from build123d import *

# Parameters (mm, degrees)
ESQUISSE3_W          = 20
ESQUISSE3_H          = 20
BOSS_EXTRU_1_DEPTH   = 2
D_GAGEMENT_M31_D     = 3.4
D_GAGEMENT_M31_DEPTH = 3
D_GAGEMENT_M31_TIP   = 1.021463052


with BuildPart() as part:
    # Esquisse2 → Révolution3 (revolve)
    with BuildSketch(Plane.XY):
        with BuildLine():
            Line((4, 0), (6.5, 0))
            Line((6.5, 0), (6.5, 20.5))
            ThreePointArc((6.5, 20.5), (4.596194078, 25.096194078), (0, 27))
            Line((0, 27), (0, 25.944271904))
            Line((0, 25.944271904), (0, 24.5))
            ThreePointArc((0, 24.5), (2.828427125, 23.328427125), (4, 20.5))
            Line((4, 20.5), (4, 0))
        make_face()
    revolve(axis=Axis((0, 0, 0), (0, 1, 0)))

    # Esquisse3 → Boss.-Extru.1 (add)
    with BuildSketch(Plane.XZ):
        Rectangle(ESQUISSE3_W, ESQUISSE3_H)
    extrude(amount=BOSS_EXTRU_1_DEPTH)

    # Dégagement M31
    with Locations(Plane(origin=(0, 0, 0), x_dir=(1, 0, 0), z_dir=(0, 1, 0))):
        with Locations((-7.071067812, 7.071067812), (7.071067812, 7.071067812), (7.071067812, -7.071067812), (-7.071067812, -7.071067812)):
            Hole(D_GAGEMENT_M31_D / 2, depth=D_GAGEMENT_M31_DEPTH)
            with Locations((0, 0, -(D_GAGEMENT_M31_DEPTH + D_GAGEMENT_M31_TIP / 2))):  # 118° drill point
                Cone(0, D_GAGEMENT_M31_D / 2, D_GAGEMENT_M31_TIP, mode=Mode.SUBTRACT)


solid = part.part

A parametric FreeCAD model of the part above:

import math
import FreeCAD as App
import Part
import Sketcher


def add_polygon(sketch, points):
    """Adds a closed chain of lines whose ends are joined by coincident constraints."""
    first, n = sketch.GeometryCount, len(points)
    for a, b in zip(points, points[1:] + points[:1]):
        sketch.addGeometry(Part.LineSegment(App.Vector(*a, 0), App.Vector(*b, 0)), False)
    for i in range(n):
        sketch.addConstraint(Sketcher.Constraint("Coincident", first + i, 2, first + (i + 1) % n, 1))

doc = App.newDocument("Part")
body = doc.addObject("PartDesign::Body", "Body")

# Sketch on XY plane
sketch1 = body.newObject("Sketcher::SketchObject", "Sketch")
sketch1.AttachmentSupport = (doc.getObject("XY_Plane"), [""])
sketch1.MapMode = "FlatFace"
sketch1.addGeometry([
    Part.LineSegment(App.Vector(4, 0, 0), App.Vector(6.5, 0, 0)),  # 0
    Part.LineSegment(App.Vector(6.5, 0, 0), App.Vector(6.5, 20.5, 0)),  # 1
    Part.ArcOfCircle(Part.Circle(App.Vector(0, 20.5, 0), App.Vector(0, 0, 1), 6.5), math.radians(0), math.radians(90)),  # 2
    Part.LineSegment(App.Vector(0, 27, 0), App.Vector(0, 24.5, 0)),  # 3
    Part.ArcOfCircle(Part.Circle(App.Vector(0, 20.5, 0), App.Vector(0, 0, 1), 4), math.radians(0), math.radians(90)),  # 4
    Part.LineSegment(App.Vector(4, 20.5, 0), App.Vector(4, 0, 0)),  # 5
], False)
sketch1.addConstraint([
    Sketcher.Constraint("Coincident", 0, 2, 1, 1),
    Sketcher.Constraint("Tangent", 1, 2, 2, 1),
    Sketcher.Constraint("Coincident", 2, 2, 3, 1),
    Sketcher.Constraint("Coincident", 3, 2, 4, 2),
    Sketcher.Constraint("Tangent", 4, 1, 5, 1),
    Sketcher.Constraint("Coincident", 5, 2, 0, 1),
    Sketcher.Constraint("Horizontal", 0),
    Sketcher.Constraint("Vertical", 1),
    Sketcher.Constraint("Vertical", 3),
    Sketcher.Constraint("Vertical", 5),
    Sketcher.Constraint("Coincident", 4, 3, 2, 3),
    Sketcher.Constraint("PointOnObject", 2, 3, -2),
    Sketcher.Constraint("PointOnObject", 0, 2, -1),
    Sketcher.Constraint("PointOnObject", 2, 2, -2),
    Sketcher.Constraint("Radius", 4, 4.0),
    Sketcher.Constraint("Radius", 2, 6.5),
    Sketcher.Constraint("DistanceY", 1, 1, 1, 2, 20.5),
])
revolution = body.newObject("PartDesign::Revolution", "Revolution")
revolution.Profile = sketch1
revolution.ReferenceAxis = (sketch1, ["V_Axis"])
revolution.Angle = 360

# Sketch on XZ plane
sketch2 = body.newObject("Sketcher::SketchObject", "Sketch001")
sketch2.AttachmentSupport = (doc.getObject("XZ_Plane"), [""])
sketch2.MapMode = "FlatFace"
add_polygon(sketch2, [(-10, 10), (-10, -10), (10, -10), (10, 10)])  # lines 0-3
sketch2.addConstraint([
    Sketcher.Constraint("Vertical", 0),
    Sketcher.Constraint("Horizontal", 1),
    Sketcher.Constraint("Vertical", 2),
    Sketcher.Constraint("Horizontal", 3),
    Sketcher.Constraint("Symmetric", 0, 2, 2, 2, -1, 1),
    Sketcher.Constraint("Equal", 3, 0),
    Sketcher.Constraint("DistanceX", 1, 1, 1, 2, 20.0),
])
pad1 = body.newObject("PartDesign::Pad", "Pad")
pad1.Profile = sketch2
pad1.Length = 2

# Sketch on XZ plane
sketch3 = body.newObject("Sketcher::SketchObject", "Sketch002")
sketch3.AttachmentSupport = (doc.getObject("XZ_Plane"), [""])
sketch3.MapMode = "FlatFace"
sketch3.addGeometry([
    Part.Circle(App.Vector(-7.1, -7.1, 0), App.Vector(0, 0, 1), 1.7),
    Part.Circle(App.Vector(7.1, -7.1, 0), App.Vector(0, 0, 1), 1.7),
    Part.Circle(App.Vector(7.1, 7.1, 0), App.Vector(0, 0, 1), 1.7),
    Part.Circle(App.Vector(-7.1, 7.1, 0), App.Vector(0, 0, 1), 1.7),
], False)
sketch3.addConstraint([
    Sketcher.Constraint("Equal", 0, 1),
    Sketcher.Constraint("Equal", 1, 2),
    Sketcher.Constraint("Equal", 2, 3),
    Sketcher.Constraint("Symmetric", 0, 3, 2, 3, -1, 1),
    Sketcher.Constraint("Symmetric", 1, 3, 3, 3, -1, 1),
    Sketcher.Constraint("Symmetric", 0, 3, 1, 3, -2),
    Sketcher.Constraint("Diameter", 0, 3.4),
    Sketcher.Constraint("DistanceX", 0, 3, -1, 1, 7.071068),
    Sketcher.Constraint("DistanceY", 0, 3, -1, 1, 7.071068),
])
doc.recompute()
hole = body.newObject("PartDesign::Hole", "Hole")
hole.Profile = sketch3
hole.ThreadType = "None"
hole.Diameter = 3.4
hole.DepthType = "Dimension"
hole.Depth = 3
hole.DrillPoint = "Angled"
hole.DrillPointAngle = 118
hole.Reversed = True

doc.recompute()
